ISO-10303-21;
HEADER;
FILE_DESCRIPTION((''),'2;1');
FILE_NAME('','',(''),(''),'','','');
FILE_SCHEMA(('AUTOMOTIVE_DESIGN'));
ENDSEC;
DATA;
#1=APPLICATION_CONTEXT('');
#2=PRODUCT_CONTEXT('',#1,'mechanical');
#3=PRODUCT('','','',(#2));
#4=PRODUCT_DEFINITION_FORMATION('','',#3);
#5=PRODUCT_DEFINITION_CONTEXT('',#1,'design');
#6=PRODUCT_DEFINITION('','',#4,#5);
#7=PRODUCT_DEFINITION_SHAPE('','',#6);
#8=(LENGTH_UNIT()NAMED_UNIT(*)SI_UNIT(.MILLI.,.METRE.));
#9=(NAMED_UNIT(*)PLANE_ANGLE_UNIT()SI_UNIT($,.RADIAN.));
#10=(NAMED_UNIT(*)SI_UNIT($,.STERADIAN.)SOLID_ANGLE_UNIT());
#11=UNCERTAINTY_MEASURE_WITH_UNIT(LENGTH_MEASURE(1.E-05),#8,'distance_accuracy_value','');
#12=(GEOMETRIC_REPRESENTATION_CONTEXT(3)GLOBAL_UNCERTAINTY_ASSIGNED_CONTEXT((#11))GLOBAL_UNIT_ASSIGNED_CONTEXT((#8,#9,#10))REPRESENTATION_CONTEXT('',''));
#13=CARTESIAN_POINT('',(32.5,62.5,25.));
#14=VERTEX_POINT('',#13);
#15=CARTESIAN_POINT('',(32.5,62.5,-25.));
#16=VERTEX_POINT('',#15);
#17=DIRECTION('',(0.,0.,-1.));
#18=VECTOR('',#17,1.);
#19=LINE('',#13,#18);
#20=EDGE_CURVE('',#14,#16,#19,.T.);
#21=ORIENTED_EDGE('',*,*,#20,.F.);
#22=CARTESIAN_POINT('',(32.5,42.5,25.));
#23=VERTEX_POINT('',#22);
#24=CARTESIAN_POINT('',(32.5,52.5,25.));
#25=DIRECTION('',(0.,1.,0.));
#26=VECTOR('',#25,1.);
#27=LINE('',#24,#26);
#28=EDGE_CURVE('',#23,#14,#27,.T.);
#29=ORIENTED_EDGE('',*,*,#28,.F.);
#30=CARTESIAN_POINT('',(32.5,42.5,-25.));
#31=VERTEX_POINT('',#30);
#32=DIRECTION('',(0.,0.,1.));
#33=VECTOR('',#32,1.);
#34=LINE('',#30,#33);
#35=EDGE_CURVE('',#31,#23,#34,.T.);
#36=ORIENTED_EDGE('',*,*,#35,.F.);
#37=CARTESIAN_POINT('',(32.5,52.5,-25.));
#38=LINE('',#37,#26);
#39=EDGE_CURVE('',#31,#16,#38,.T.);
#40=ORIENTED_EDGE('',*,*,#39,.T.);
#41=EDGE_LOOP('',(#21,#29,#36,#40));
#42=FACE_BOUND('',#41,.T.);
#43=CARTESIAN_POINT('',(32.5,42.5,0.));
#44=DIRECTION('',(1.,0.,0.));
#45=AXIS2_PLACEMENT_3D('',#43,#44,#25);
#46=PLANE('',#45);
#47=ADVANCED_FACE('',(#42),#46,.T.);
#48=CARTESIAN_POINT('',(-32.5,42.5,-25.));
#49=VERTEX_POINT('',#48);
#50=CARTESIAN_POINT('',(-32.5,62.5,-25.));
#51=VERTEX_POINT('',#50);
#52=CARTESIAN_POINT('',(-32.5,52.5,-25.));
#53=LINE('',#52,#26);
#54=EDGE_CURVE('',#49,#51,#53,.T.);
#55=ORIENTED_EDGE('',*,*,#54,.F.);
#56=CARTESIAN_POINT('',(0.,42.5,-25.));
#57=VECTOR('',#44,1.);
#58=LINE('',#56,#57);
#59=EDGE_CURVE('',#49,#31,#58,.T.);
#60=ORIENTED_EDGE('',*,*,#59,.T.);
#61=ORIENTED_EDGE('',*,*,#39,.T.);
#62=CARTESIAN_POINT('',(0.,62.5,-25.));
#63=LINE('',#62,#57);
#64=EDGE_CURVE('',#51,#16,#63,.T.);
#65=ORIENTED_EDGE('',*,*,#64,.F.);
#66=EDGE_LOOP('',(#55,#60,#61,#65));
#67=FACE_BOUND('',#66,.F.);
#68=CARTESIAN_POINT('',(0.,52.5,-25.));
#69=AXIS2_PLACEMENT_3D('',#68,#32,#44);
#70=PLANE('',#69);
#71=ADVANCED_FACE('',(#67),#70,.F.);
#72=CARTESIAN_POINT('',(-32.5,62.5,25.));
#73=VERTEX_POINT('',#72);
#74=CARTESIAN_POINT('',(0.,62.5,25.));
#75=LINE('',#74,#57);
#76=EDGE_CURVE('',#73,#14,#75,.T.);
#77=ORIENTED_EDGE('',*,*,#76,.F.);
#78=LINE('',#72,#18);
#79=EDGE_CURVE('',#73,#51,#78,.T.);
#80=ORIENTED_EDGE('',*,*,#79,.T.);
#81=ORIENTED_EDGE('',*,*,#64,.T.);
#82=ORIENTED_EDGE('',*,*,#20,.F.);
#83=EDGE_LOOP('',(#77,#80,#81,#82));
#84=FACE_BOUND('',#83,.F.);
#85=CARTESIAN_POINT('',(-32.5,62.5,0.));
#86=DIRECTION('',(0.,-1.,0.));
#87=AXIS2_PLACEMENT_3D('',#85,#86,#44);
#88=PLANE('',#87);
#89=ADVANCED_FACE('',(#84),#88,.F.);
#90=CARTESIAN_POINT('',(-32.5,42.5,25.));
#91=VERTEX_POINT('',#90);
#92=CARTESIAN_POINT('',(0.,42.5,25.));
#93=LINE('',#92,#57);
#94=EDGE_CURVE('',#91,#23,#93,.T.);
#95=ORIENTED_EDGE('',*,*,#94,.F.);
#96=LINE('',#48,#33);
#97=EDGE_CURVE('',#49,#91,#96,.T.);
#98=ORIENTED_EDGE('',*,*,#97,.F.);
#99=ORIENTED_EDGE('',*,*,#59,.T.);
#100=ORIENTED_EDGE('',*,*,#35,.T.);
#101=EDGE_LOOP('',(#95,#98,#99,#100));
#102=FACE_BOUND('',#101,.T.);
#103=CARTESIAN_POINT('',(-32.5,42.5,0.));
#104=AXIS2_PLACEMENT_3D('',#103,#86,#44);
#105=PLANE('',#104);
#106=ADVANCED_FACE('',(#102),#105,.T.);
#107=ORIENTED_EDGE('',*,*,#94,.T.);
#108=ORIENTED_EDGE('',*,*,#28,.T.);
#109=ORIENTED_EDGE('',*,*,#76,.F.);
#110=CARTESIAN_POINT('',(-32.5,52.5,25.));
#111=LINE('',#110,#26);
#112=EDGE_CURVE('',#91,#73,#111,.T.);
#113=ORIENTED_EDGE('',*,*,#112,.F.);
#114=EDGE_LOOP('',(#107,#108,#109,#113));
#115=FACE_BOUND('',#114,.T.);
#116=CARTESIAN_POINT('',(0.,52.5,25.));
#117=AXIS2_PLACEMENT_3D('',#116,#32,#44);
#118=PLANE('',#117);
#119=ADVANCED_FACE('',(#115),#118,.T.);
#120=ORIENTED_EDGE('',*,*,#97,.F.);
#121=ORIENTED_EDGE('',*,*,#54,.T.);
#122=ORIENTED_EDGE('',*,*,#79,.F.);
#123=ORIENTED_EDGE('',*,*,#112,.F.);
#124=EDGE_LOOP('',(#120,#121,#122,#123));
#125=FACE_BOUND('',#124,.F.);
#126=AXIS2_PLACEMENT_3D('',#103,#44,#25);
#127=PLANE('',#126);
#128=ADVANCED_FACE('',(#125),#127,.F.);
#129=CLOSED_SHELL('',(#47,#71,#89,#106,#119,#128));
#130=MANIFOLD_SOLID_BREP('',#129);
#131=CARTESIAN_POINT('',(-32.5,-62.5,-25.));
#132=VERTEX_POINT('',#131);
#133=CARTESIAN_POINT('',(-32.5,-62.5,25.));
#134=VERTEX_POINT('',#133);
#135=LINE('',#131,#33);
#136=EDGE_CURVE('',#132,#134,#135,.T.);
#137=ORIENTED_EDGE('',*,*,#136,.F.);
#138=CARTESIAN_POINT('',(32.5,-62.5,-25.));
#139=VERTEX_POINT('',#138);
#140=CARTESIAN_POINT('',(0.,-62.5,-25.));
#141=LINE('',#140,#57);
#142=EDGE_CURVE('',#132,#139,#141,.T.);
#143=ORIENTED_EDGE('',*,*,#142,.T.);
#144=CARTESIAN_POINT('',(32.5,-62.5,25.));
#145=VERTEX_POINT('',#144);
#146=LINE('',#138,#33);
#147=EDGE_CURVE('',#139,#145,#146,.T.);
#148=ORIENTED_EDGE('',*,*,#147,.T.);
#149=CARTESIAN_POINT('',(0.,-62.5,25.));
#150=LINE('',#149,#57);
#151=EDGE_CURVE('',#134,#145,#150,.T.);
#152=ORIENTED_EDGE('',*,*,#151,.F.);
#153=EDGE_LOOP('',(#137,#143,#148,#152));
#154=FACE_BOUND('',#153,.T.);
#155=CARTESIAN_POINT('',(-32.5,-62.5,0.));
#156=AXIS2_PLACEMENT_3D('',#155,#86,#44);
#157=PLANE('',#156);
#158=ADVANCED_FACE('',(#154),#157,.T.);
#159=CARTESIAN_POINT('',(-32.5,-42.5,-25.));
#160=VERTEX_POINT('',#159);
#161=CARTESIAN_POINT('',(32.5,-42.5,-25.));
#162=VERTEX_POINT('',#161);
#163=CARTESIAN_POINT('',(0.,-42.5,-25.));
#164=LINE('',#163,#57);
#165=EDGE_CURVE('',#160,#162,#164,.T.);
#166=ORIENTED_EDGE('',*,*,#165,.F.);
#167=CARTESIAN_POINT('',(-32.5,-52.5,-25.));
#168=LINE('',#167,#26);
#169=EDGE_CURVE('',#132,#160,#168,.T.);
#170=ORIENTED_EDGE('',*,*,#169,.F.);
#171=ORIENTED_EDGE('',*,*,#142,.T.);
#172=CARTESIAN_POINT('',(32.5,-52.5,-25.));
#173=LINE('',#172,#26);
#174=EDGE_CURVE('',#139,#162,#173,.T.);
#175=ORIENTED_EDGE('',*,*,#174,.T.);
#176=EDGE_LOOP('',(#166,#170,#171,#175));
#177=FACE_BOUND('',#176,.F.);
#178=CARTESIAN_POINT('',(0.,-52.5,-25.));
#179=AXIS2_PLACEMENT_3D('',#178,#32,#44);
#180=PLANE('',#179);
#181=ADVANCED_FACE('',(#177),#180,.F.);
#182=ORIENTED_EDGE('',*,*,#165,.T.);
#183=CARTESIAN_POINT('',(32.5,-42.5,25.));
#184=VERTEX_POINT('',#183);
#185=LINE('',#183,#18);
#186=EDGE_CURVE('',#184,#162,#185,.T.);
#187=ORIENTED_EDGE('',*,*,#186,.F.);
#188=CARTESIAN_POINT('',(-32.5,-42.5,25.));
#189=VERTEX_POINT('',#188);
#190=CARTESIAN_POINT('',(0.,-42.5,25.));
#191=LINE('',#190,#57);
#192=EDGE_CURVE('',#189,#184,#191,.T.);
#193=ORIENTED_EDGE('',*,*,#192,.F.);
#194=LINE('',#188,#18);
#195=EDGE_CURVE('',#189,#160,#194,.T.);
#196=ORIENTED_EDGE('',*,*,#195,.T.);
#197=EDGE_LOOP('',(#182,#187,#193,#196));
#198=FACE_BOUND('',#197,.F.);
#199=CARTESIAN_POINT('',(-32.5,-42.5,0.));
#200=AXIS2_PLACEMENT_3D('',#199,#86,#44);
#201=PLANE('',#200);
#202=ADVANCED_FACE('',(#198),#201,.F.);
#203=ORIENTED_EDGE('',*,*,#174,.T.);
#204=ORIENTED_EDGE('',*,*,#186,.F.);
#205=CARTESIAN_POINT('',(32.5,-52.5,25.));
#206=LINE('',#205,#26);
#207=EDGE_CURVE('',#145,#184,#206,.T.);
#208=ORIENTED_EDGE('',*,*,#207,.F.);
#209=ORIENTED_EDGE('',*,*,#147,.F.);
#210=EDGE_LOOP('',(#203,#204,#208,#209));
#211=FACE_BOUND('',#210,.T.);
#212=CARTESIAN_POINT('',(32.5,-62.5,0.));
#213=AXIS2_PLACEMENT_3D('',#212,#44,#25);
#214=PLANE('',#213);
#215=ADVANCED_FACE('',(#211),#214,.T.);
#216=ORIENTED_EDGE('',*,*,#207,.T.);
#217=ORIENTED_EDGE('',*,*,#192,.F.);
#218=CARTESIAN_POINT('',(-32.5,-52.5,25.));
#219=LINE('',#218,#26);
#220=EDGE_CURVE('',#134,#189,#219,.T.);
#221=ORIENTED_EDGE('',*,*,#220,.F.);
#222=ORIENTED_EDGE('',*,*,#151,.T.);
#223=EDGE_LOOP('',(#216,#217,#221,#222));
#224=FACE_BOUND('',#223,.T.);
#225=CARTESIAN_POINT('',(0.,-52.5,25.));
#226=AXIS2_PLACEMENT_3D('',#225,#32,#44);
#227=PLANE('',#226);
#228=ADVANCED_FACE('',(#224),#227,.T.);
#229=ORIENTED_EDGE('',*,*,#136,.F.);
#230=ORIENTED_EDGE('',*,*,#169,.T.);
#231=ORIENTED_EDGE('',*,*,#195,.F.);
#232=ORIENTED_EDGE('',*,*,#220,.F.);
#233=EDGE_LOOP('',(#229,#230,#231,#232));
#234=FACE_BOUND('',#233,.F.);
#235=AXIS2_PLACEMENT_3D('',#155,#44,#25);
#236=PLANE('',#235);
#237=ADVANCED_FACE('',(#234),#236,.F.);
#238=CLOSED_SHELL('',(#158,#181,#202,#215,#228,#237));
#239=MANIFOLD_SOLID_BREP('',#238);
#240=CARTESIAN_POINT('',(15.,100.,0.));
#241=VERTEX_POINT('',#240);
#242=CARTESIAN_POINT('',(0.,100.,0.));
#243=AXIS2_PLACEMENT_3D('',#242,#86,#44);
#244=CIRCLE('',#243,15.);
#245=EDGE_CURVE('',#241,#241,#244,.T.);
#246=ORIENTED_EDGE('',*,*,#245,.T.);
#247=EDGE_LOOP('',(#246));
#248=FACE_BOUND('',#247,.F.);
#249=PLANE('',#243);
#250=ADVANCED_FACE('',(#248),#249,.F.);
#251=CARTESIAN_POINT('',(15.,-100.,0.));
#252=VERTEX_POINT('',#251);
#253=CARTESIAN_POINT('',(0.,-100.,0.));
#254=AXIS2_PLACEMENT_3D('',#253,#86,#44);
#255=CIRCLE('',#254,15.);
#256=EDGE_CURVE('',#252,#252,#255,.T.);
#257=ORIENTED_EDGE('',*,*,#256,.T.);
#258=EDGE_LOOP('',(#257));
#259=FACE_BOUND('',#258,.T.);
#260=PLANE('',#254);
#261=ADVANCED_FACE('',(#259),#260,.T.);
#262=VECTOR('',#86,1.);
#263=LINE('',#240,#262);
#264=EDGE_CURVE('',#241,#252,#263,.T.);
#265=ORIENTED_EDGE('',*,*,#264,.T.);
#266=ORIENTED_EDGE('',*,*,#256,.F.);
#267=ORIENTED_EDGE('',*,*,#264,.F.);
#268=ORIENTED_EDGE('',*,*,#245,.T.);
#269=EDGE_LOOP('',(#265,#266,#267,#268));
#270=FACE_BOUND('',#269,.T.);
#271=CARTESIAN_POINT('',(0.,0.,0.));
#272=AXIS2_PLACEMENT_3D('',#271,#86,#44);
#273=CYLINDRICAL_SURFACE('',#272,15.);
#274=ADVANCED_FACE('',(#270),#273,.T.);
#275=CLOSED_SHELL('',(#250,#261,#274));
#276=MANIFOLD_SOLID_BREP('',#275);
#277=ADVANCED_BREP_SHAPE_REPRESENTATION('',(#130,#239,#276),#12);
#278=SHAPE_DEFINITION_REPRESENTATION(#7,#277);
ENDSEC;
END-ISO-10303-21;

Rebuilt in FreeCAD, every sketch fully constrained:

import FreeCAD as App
import Part
import Sketcher
from FreeCAD import Vector


def add_polygon(sketch, points):
    """Adds a closed chain of lines whose ends are joined by coincident constraints."""
    first, n = sketch.GeometryCount, len(points)
    for a, b in zip(points, points[1:] + points[:1]):
        sketch.addGeometry(Part.LineSegment(App.Vector(*a, 0), App.Vector(*b, 0)), False)
    for i in range(n):
        sketch.addConstraint(Sketcher.Constraint("Coincident", first + i, 2, first + (i + 1) % n, 1))

doc = App.newDocument("Part")
body = doc.addObject("PartDesign::Body", "Body")

sketch1 = doc.addObject("Sketcher::SketchObject", "Sketch")
body.addObject(sketch1)
sketch1.AttachmentSupport = (doc.XZ_Plane, [""])
sketch1.MapMode = "FlatFace"
sketch1.addGeometry(Part.Circle(Vector(0, 0, 0), Vector(0, 0, 1), 15), False)
sketch1.addConstraint([
    Sketcher.Constraint("Coincident", 0, 3, -1, 1),
    Sketcher.Constraint("Diameter", 0, 30.0),
])
pad1 = doc.addObject("PartDesign::Pad", "Pad")
body.addObject(pad1)
pad1.Profile = sketch1
pad1.Length = 200
pad1.Midplane = True
body2 = doc.addObject("PartDesign::Body", "Body001")
body2.AllowCompound = True

sketch2 = doc.addObject("Sketcher::SketchObject", "Sketch001")
body2.addObject(sketch2)
sketch2.AttachmentSupport = (doc.getObject("XY_Plane001"), [""])
sketch2.MapMode = "FlatFace"
add_polygon(sketch2, [(-32.5, 62.5), (-32.5, 42.5), (32.5, 42.5), (32.5, 62.5)])
add_polygon(sketch2, [(-32.5, -42.5), (-32.5, -62.5), (32.5, -62.5), (32.5, -42.5)])
sketch2.addConstraint([
    Sketcher.Constraint("Vertical", 0),
    Sketcher.Constraint("Horizontal", 1),
    Sketcher.Constraint("Vertical", 2),
    Sketcher.Constraint("Horizontal", 3),
    Sketcher.Constraint("Vertical", 4),
    Sketcher.Constraint("Horizontal", 5),
    Sketcher.Constraint("Vertical", 6),
    Sketcher.Constraint("Horizontal", 7),
    Sketcher.Constraint("Symmetric", 2, 2, 4, 2, -1, 1),
    Sketcher.Constraint("Symmetric", 0, 2, 6, 2, -1, 1),
    Sketcher.Constraint("Vertical", 3, 2, 4, 2),
    Sketcher.Constraint("DistanceX", 1, 1, 1, 2, 65.0),
    Sketcher.Constraint("DistanceY", 0, 2, 0, 1, 20.0),
    Sketcher.Constraint("DistanceY", 4, 2, 0, 2, 105.0),
])
pad2 = doc.addObject("PartDesign::Pad", "Pad001")
body2.addObject(pad2)
pad2.Profile = sketch2
pad2.Type = "TwoLengths"
pad2.Length = 25
pad2.Length2 = 25

doc.recompute()
